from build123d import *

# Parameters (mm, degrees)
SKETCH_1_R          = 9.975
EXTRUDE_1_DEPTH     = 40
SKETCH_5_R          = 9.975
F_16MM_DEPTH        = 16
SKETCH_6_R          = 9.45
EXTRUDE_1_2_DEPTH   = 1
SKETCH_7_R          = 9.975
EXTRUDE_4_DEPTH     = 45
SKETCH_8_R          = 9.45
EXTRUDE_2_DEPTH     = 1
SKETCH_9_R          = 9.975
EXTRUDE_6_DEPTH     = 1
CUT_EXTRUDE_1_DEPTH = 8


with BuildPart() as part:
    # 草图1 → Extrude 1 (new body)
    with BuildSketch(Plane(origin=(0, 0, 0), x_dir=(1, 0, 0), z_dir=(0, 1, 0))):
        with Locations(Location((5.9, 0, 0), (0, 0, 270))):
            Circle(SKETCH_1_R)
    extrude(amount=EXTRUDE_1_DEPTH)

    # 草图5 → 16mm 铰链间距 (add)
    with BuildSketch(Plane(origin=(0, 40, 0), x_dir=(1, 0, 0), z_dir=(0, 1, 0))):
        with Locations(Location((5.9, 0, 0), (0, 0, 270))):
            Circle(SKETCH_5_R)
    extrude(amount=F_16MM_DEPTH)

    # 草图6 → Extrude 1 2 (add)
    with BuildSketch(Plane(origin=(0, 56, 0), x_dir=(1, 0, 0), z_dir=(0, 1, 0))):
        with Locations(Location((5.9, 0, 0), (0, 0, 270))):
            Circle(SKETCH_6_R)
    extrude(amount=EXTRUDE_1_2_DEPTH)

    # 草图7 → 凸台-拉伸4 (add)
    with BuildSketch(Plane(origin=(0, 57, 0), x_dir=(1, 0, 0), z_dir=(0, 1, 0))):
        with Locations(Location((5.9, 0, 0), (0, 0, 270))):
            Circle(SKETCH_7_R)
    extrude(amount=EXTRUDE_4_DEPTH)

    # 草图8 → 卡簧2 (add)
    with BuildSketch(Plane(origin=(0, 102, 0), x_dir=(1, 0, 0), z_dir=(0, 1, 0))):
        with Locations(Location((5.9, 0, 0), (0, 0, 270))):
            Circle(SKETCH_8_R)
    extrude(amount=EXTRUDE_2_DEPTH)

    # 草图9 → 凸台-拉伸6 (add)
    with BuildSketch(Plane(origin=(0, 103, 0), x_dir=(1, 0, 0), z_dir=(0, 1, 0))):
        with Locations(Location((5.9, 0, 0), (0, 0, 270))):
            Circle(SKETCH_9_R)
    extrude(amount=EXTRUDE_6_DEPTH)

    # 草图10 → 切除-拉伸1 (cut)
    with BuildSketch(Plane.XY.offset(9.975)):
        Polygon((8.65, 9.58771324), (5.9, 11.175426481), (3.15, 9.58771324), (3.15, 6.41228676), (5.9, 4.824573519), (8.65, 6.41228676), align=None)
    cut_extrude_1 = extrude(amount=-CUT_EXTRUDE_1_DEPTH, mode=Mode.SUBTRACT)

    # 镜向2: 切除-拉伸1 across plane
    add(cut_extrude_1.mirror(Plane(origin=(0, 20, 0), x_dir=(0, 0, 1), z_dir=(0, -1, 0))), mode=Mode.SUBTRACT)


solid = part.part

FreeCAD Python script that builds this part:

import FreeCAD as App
import Part
import Sketcher

V = App.Vector
Q = App.Units.Quantity


def add_polygon(sketch, points):
    """Adds a closed chain of lines whose ends are joined by coincident constraints."""
    first, n = sketch.GeometryCount, len(points)
    for a, b in zip(points, points[1:] + points[:1]):
        sketch.addGeometry(Part.LineSegment(App.Vector(*a, 0), App.Vector(*b, 0)), False)
    for i in range(n):
        sketch.addConstraint(Sketcher.Constraint("Coincident", first + i, 2, first + (i + 1) % n, 1))

doc = App.newDocument("Part")
body = doc.addObject("PartDesign::Body", "Body")

# Sketch on XZ plane
sketch1 = doc.addObject("Sketcher::SketchObject", "Sketch")
body.addObject(sketch1)
sketch1.AttachmentSupport = (doc.XZ_Plane, [""])
sketch1.MapMode = "FlatFace"
sketch1.addGeometry(Part.Circle(V(5.9, 0, 0), V(0, 0, 1), 9.975), False)
sketch1.addConstraint([
    Sketcher.Constraint("PointOnObject", 0, 3, -1),
    Sketcher.Constraint("Diameter", 0, Q("19.95 mm")),
    Sketcher.Constraint("DistanceX", -1, 1, 0, 3, Q("5.9 mm")),
])
pad1 = doc.addObject("PartDesign::Pad", "Pad")
body.addObject(pad1)
pad1.Profile = sketch1
pad1.Length = 40
pad1.Reversed = True

# Sketch on XZ plane
sketch2 = doc.addObject("Sketcher::SketchObject", "Sketch001")
body.addObject(sketch2)
sketch2.AttachmentSupport = (doc.XZ_Plane, [""])
sketch2.MapMode = "FlatFace"
sketch2.AttachmentOffset = App.Placement(V(0, 0, -40), App.Rotation())
sketch2.addGeometry(Part.Circle(V(5.9, 0, 0), V(0, 0, 1), 9.975), False)
sketch2.addConstraint([
    Sketcher.Constraint("PointOnObject", 0, 3, -1),
    Sketcher.Constraint("Diameter", 0, Q("19.95 mm")),
    Sketcher.Constraint("DistanceX", -1, 1, 0, 3, Q("5.9 mm")),
])
pad2 = doc.addObject("PartDesign::Pad", "Pad001")
body.addObject(pad2)
pad2.Profile = sketch2
pad2.Length = 16
pad2.Reversed = True

# Sketch on XZ plane
sketch3 = doc.addObject("Sketcher::SketchObject", "Sketch002")
body.addObject(sketch3)
sketch3.AttachmentSupport = (doc.XZ_Plane, [""])
sketch3.MapMode = "FlatFace"
sketch3.AttachmentOffset = App.Placement(V(0, 0, -56), App.Rotation())
sketch3.addGeometry(Part.Circle(V(5.9, 0, 0), V(0, 0, 1), 9.45), False)
sketch3.addConstraint([
    Sketcher.Constraint("PointOnObject", 0, 3, -1),
    Sketcher.Constraint("Diameter", 0, Q("18.9 mm")),
    Sketcher.Constraint("DistanceX", -1, 1, 0, 3, Q("5.9 mm")),
])
pad3 = doc.addObject("PartDesign::Pad", "Pad002")
body.addObject(pad3)
pad3.Profile = sketch3
pad3.Length = 1
pad3.Reversed = True

# Sketch on XZ plane
sketch4 = doc.addObject("Sketcher::SketchObject", "Sketch003")
body.addObject(sketch4)
sketch4.AttachmentSupport = (doc.XZ_Plane, [""])
sketch4.MapMode = "FlatFace"
sketch4.AttachmentOffset = App.Placement(V(0, 0, -57), App.Rotation())
sketch4.addGeometry(Part.Circle(V(5.9, 0, 0), V(0, 0, 1), 9.975), False)
sketch4.addConstraint([
    Sketcher.Constraint("PointOnObject", 0, 3, -1),
    Sketcher.Constraint("Diameter", 0, Q("19.95 mm")),
    Sketcher.Constraint("DistanceX", -1, 1, 0, 3, Q("5.9 mm")),
])
pad4 = doc.addObject("PartDesign::Pad", "Pad003")
body.addObject(pad4)
pad4.Profile = sketch4
pad4.Length = 45
pad4.Reversed = True

# Sketch on XZ plane
sketch5 = doc.addObject("Sketcher::SketchObject", "Sketch004")
body.addObject(sketch5)
sketch5.AttachmentSupport = (doc.XZ_Plane, [""])
sketch5.MapMode = "FlatFace"
sketch5.AttachmentOffset = App.Placement(V(0, 0, -102), App.Rotation())
sketch5.addGeometry(Part.Circle(V(5.9, 0, 0), V(0, 0, 1), 9.45), False)
sketch5.addConstraint([
    Sketcher.Constraint("PointOnObject", 0, 3, -1),
    Sketcher.Constraint("Diameter", 0, Q("18.9 mm")),
    Sketcher.Constraint("DistanceX", -1, 1, 0, 3, Q("5.9 mm")),
])
pad5 = doc.addObject("PartDesign::Pad", "Pad004")
body.addObject(pad5)
pad5.Profile = sketch5
pad5.Length = 1
pad5.Reversed = True

# Sketch on XZ plane
sketch6 = doc.addObject("Sketcher::SketchObject", "Sketch005")
body.addObject(sketch6)
sketch6.AttachmentSupport = (doc.XZ_Plane, [""])
sketch6.MapMode = "FlatFace"
sketch6.AttachmentOffset = App.Placement(V(0, 0, -103), App.Rotation())
sketch6.addGeometry(Part.Circle(V(5.9, 0, 0), V(0, 0, 1), 9.975), False)
sketch6.addConstraint([
    Sketcher.Constraint("PointOnObject", 0, 3, -1),
    Sketcher.Constraint("Diameter", 0, Q("19.95 mm")),
    Sketcher.Constraint("DistanceX", -1, 1, 0, 3, Q("5.9 mm")),
])
pad6 = doc.addObject("PartDesign::Pad", "Pad005")
body.addObject(pad6)
pad6.Profile = sketch6
pad6.Length = 1
pad6.Reversed = True

# Sketch on XY plane
sketch7 = doc.addObject("Sketcher::SketchObject", "Sketch006")
body.addObject(sketch7)
sketch7.AttachmentSupport = (doc.XY_Plane, [""])
sketch7.MapMode = "FlatFace"
sketch7.AttachmentOffset = App.Placement(V(0, 0, 9.975), App.Rotation())
add_polygon(sketch7, [(8.65, 9.587713), (5.9, 11.175426), (3.15, 9.587713), (3.15, 6.412287), (5.9, 4.824574), (8.65, 6.412287)])  # lines 0-5
sketch7.addConstraint([
    Sketcher.Constraint("Vertical", 2),
    Sketcher.Constraint("Vertical", 5),
    Sketcher.Constraint("Parallel", 0, 3),
    Sketcher.Constraint("Parallel", 1, 4),
    Sketcher.Constraint("Horizontal", 2, 2, 4, 2),
    Sketcher.Constraint("Horizontal", 1, 2, 5, 2),
    Sketcher.Constraint("Vertical", 0, 2, 3, 2),
    Sketcher.Constraint("Angle", 0, Q("150 deg")),
    Sketcher.Constraint("DistanceX", -1, 1, 0, 2, Q("5.9 mm")),
    Sketcher.Constraint("DistanceX", 2, 2, 4, 2, Q("5.5 mm")),
    Sketcher.Constraint("DistanceY", 2, 2, 2, 1, Q("3.175426 mm")),
    Sketcher.Constraint("DistanceY", -1, 1, 0, 2, Q("11.175426 mm")),
])
pocket1 = doc.addObject("PartDesign::Pocket", "Pocket")
body.addObject(pocket1)
pocket1.Profile = sketch7
pocket1.Length = 8
doc.recompute()

datumplane = doc.addObject("PartDesign::Plane", "DatumPlane")
body.addObject(datumplane)
datumplane.AttachmentSupport = (doc.XZ_Plane, [""])
datumplane.MapMode = "FlatFace"
datumplane.AttachmentOffset = App.Placement(V(0, 0, -20), App.Rotation())
mirrored = doc.addObject("PartDesign::Mirrored", "Mirrored")
body.addObject(mirrored)
mirrored.Originals = [pocket1]
mirrored.MirrorPlane = (datumplane, [""])
body.Tip = mirrored

doc.recompute()
